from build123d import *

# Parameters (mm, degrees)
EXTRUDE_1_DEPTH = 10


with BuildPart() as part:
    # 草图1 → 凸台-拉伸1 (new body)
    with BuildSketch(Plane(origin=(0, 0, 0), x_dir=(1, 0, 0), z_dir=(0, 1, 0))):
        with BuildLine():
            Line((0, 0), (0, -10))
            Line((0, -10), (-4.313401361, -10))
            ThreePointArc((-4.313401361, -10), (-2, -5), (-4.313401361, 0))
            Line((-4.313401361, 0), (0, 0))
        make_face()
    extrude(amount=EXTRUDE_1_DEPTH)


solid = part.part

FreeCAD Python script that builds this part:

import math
import FreeCAD as App
import Part
import Sketcher

doc = App.newDocument("Part")
params = doc.addObject("Spreadsheet::Sheet", "Params")
for row, (alias, value) in enumerate([
    ("sketch1_height", "10 mm"),
    ("sketch1_radius", "6.56 mm"),
    ("pad1_length", "10 mm"),
], start=1):
    params.set(f"A{row}", alias)
    params.set(f"B{row}", "=" + value)
    params.setAlias(f"B{row}", alias)

body = doc.addObject("PartDesign::Body", "Body")

sketch1 = body.newObject("Sketcher::SketchObject", "Sketch")
sketch1.AttachmentSupport = (doc.getObject("XZ_Plane"), [""])
sketch1.MapMode = "FlatFace"
sketch1.addGeometry([
    Part.LineSegment(App.Vector(0, 10, 0), App.Vector(0, 0, 0)),
    Part.LineSegment(App.Vector(0, 0, 0), App.Vector(-4.313401, 0, 0)),
    Part.ArcOfCircle(Part.Circle(App.Vector(-8.56, 5, 0), App.Vector(0, 0, 1), 6.56), math.radians(-49.658099), math.radians(49.658099)),
    Part.LineSegment(App.Vector(-4.313401, 10, 0), App.Vector(0, 10, 0)),
], False)
sketch1.addConstraint([
    Sketcher.Constraint("Coincident", 0, 2, 1, 1),
    Sketcher.Constraint("Coincident", 1, 2, 2, 1),
    Sketcher.Constraint("Coincident", 2, 2, 3, 1),
    Sketcher.Constraint("Coincident", 3, 2, 0, 1),
    Sketcher.Constraint("Vertical", 0),
    Sketcher.Constraint("Horizontal", 1),
    Sketcher.Constraint("Horizontal", 3),
    Sketcher.Constraint("Coincident", 0, 2, -1, 1),
    Sketcher.Constraint("Vertical", 1, 2, 2, 2),
    Sketcher.Constraint("DistanceY", 0, 2, 0, 1, 10.0),
    Sketcher.Constraint("Radius", 2, 6.56),
    Sketcher.Constraint("DistanceX", 2, 3, -1, 1, 8.56),
])
sketch1.setExpression("Constraints[9]", "Params.sketch1_height")
sketch1.setExpression("Constraints[10]", "Params.sketch1_radius")
pad1 = body.newObject("PartDesign::Pad", "Pad")
pad1.Profile = sketch1
pad1.setExpression("Length", "Params.pad1_length")
pad1.Reversed = True

doc.recompute()
